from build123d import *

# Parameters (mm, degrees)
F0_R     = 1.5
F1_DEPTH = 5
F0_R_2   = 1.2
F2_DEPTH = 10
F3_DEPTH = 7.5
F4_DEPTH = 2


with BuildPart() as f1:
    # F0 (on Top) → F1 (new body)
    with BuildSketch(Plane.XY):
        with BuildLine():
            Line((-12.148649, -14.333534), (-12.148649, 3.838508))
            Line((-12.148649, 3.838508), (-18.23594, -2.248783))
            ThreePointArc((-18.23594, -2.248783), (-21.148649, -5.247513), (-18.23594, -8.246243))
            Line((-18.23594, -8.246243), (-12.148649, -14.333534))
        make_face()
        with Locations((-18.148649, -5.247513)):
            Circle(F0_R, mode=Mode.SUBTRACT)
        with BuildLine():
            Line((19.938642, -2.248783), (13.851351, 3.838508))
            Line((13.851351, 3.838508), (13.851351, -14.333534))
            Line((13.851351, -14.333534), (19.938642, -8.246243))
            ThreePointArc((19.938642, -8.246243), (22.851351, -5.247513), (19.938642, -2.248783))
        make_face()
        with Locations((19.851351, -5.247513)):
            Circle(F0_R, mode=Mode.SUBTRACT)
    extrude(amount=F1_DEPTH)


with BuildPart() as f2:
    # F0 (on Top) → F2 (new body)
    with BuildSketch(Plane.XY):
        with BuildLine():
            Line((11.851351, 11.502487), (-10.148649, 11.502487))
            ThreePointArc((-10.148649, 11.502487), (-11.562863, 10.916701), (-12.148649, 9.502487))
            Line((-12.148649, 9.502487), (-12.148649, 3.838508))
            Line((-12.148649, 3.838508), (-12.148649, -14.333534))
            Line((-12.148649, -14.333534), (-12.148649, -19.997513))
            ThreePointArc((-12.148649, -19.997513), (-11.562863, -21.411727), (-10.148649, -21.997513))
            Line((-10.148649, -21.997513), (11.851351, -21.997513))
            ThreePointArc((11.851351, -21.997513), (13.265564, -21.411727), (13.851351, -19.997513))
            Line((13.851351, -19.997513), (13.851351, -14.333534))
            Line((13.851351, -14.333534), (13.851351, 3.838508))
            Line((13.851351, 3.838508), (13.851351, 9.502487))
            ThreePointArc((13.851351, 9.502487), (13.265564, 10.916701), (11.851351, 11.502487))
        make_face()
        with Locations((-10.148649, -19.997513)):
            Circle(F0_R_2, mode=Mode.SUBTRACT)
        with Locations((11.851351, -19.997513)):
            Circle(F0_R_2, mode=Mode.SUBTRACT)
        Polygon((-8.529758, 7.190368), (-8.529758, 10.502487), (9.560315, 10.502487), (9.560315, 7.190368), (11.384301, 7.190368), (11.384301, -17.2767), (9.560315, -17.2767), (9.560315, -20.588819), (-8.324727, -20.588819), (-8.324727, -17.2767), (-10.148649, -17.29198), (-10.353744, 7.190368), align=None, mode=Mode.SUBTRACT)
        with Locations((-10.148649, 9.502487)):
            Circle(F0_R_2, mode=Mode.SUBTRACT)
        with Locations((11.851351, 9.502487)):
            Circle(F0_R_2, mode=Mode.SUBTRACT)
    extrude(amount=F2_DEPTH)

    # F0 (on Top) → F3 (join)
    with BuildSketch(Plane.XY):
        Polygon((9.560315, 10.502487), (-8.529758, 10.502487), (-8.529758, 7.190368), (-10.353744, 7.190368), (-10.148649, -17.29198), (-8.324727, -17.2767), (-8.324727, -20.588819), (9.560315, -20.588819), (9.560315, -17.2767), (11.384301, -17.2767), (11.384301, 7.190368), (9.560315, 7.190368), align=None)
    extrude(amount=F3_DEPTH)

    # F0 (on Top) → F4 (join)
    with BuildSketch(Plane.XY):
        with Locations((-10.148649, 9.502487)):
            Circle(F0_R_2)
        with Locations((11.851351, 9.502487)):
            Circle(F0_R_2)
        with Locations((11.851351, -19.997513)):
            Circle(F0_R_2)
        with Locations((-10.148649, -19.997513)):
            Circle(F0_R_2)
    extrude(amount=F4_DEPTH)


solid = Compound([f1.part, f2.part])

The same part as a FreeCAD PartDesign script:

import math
import FreeCAD as App
import Part
import Sketcher
Q = App.Units.Quantity

doc = App.newDocument("Part")
params = doc.addObject("Spreadsheet::Sheet", "Params")
for row, (alias, value) in enumerate([
    ("sketch1_diameter", "3 mm"),
    ("sketch1_radius", "3 mm"),
    ("pad1_length", "5 mm"),
    ("sketch2_radius", "1.999999 mm"),
    ("sketch2_diameter", "2.4 mm"),
    ("sketch2_width", "22 mm"),
    ("sketch2_height", "29.5 mm"),
    ("pad2_length", "10 mm"),
    ("pad3_length", "7.5 mm"),
    ("sketch4_diameter", "2.4 mm"),
    ("pad4_length", "2 mm"),
], start=1):
    params.set(f"A{row}", alias)
    params.set(f"B{row}", "=" + value)
    params.setAlias(f"B{row}", alias)

body = doc.addObject("PartDesign::Body", "Body")
body.AllowCompound = True

# Sketch on XY plane
sketch1 = body.newObject("Sketcher::SketchObject", "Sketch")
sketch1.AttachmentSupport = (doc.getObject("XY_Plane"), [""])
sketch1.MapMode = "FlatFace"
sketch1.addGeometry([
    Part.LineSegment(App.Vector(-12.148649, -14.333534, 0), App.Vector(-12.148649, 3.838508, 0)),  # 0
    Part.LineSegment(App.Vector(-12.148649, 3.838508, 0), App.Vector(-18.23594, -2.248783, 0)),  # 1
    Part.ArcOfCircle(Part.Circle(App.Vector(-18.148649, -5.247513, 0), App.Vector(0, 0, 1), 3), math.radians(91.667375), math.radians(268.332625)),  # 2
    Part.LineSegment(App.Vector(-18.23594, -8.246243, 0), App.Vector(-12.148649, -14.333534, 0)),  # 3
    Part.Circle(App.Vector(-18.148649, -5.247513, 0), App.Vector(0, 0, 1), 1.5),  # 4
    Part.LineSegment(App.Vector(19.938642, -2.248783, 0), App.Vector(13.851351, 3.838508, 0)),  # 5
    Part.LineSegment(App.Vector(13.851351, 3.838508, 0), App.Vector(13.851351, -14.333534, 0)),  # 6
    Part.LineSegment(App.Vector(13.851351, -14.333534, 0), App.Vector(19.938642, -8.246243, 0)),  # 7
    Part.ArcOfCircle(Part.Circle(App.Vector(19.851351, -5.247513, 0), App.Vector(0, 0, 1), 3), math.radians(-88.332625), math.radians(88.332625)),  # 8
    Part.Circle(App.Vector(19.851351, -5.247513, 0), App.Vector(0, 0, 1), 1.5),  # 9
], False)
sketch1.addConstraint([
    Sketcher.Constraint("Coincident", 0, 2, 1, 1),
    Sketcher.Constraint("Coincident", 1, 2, 2, 1),
    Sketcher.Constraint("Coincident", 2, 2, 3, 1),
    Sketcher.Constraint("Coincident", 3, 2, 0, 1),
    Sketcher.Constraint("Coincident", 5, 2, 6, 1),
    Sketcher.Constraint("Coincident", 6, 2, 7, 1),
    Sketcher.Constraint("Coincident", 7, 2, 8, 1),
    Sketcher.Constraint("Coincident", 8, 2, 5, 1),
    Sketcher.Constraint("Vertical", 0),
    Sketcher.Constraint("Vertical", 6),
    Sketcher.Constraint("Coincident", 4, 3, 2, 3),
    Sketcher.Constraint("Coincident", 9, 3, 8, 3),
    Sketcher.Constraint("Equal", 2, 8),
    Sketcher.Constraint("Equal", 4, 9),
    Sketcher.Constraint("Perpendicular", 1, 3),
    Sketcher.Constraint("Parallel", 3, 5),
    Sketcher.Constraint("Perpendicular", 5, 7),
    Sketcher.Constraint("Horizontal", 4, 3, 8, 3),
    Sketcher.Constraint("Horizontal", 0, 2, 5, 2),
    Sketcher.Constraint("Horizontal", 3, 2, 6, 2),
    Sketcher.Constraint("Horizontal", 2, 2, 7, 2),
    Sketcher.Constraint("Horizontal", 1, 2, 8, 2),
    Sketcher.Constraint("Vertical", 1, 2, 2, 2),
    Sketcher.Constraint("Diameter", 4, Q("3 mm")),
    Sketcher.Constraint("Radius", 2, Q("3 mm")),
    Sketcher.Constraint("DistanceX", 2, 3, 8, 3, Q("38 mm")),
    Sketcher.Constraint("DistanceX", 2, 3, 0, 2, Q("6 mm")),
    Sketcher.Constraint("Distance", 1, Q("8.608729 mm")),
    Sketcher.Constraint("DistanceX", 2, 3, -1, 1, Q("18.148649 mm")),
    Sketcher.Constraint("DistanceY", -1, 1, 0, 2, Q("3.838508 mm")),
])
sketch1.setExpression("Constraints[23]", "Params.sketch1_diameter")
sketch1.setExpression("Constraints[24]", "Params.sketch1_radius")
pad1 = body.newObject("PartDesign::Pad", "Pad")
pad1.Profile = sketch1
pad1.setExpression("Length", "Params.pad1_length")
body2 = doc.addObject("PartDesign::Body", "Body001")

# Sketch on XY plane
sketch2 = body2.newObject("Sketcher::SketchObject", "Sketch001")
sketch2.AttachmentSupport = (doc.getObject("XY_Plane001"), [""])
sketch2.MapMode = "FlatFace"
sketch2.addGeometry([
    Part.LineSegment(App.Vector(11.851351, 11.502487, 0), App.Vector(-10.148649, 11.502487, 0)),  # 0
    Part.ArcOfCircle(Part.Circle(App.Vector(-10.14865, 9.502488, 0), App.Vector(0, 0, 1), 1.999999), math.radians(89.999957), math.radians(180.000043)),  # 1
    Part.LineSegment(App.Vector(-12.148649, 9.502487, 0), App.Vector(-12.148649, -19.997513, 0)),  # 2
    Part.ArcOfCircle(Part.Circle(App.Vector(-10.14865, -19.997514, 0), App.Vector(0, 0, 1), 1.999999), math.radians(179.999957), math.radians(270.000043)),  # 3
    Part.LineSegment(App.Vector(-10.148649, -21.997513, 0), App.Vector(11.851351, -21.997513, 0)),  # 4
    Part.ArcOfCircle(Part.Circle(App.Vector(11.851351, -19.997513, 0), App.Vector(0, 0, 1), 2), math.radians(-89.999994), math.radians(-0.000006)),  # 5
    Part.LineSegment(App.Vector(13.851351, -19.997513, 0), App.Vector(13.851351, 9.502487, 0)),  # 6
    Part.ArcOfCircle(Part.Circle(App.Vector(11.851351, 9.502487, 0), App.Vector(0, 0, 1), 2), math.radians(0.000006), math.radians(89.999994)),  # 7
    Part.Circle(App.Vector(-10.148649, -19.997513, 0), App.Vector(0, 0, 1), 1.2),  # 8
    Part.Circle(App.Vector(11.851351, -19.997513, 0), App.Vector(0, 0, 1), 1.2),  # 9
    Part.LineSegment(App.Vector(-10.353744, 7.190368, 0), App.Vector(-8.529758, 7.190368, 0)),  # 10
    Part.LineSegment(App.Vector(-8.529758, 7.190368, 0), App.Vector(-8.529758, 10.502487, 0)),  # 11
    Part.LineSegment(App.Vector(-8.529758, 10.502487, 0), App.Vector(9.560315, 10.502487, 0)),  # 12
    Part.LineSegment(App.Vector(9.560315, 10.502487, 0), App.Vector(9.560315, 7.190368, 0)),  # 13
    Part.LineSegment(App.Vector(9.560315, 7.190368, 0), App.Vector(11.384301, 7.190368, 0)),  # 14
    Part.LineSegment(App.Vector(11.384301, 7.190368, 0), App.Vector(11.384301, -17.2767, 0)),  # 15
    Part.LineSegment(App.Vector(11.384301, -17.2767, 0), App.Vector(9.560315, -17.2767, 0)),  # 16
    Part.LineSegment(App.Vector(9.560315, -17.2767, 0), App.Vector(9.560315, -20.588819, 0)),  # 17
    Part.LineSegment(App.Vector(9.560315, -20.588819, 0), App.Vector(-8.324727, -20.588819, 0)),  # 18
    Part.LineSegment(App.Vector(-8.324727, -20.588819, 0), App.Vector(-8.324727, -17.2767, 0)),  # 19
    Part.LineSegment(App.Vector(-8.324727, -17.2767, 0), App.Vector(-10.148649, -17.29198, 0)),  # 20
    Part.LineSegment(App.Vector(-10.148649, -17.29198, 0), App.Vector(-10.353744, 7.190368, 0)),  # 21
    Part.Circle(App.Vector(-10.148649, 9.502487, 0), App.Vector(0, 0, 1), 1.2),  # 22
    Part.Circle(App.Vector(11.851351, 9.502487, 0), App.Vector(0, 0, 1), 1.2),  # 23
], False)
sketch2.addConstraint([
    Sketcher.Constraint("Tangent", 0, 2, 1, 1),
    Sketcher.Constraint("Tangent", 1, 2, 2, 1),
    Sketcher.Constraint("Tangent", 2, 2, 3, 1),
    Sketcher.Constraint("Tangent", 3, 2, 4, 1),
    Sketcher.Constraint("Tangent", 4, 2, 5, 1),
    Sketcher.Constraint("Tangent", 5, 2, 6, 1),
    Sketcher.Constraint("Tangent", 6, 2, 7, 1),
    Sketcher.Constraint("Tangent", 7, 2, 0, 1),
    Sketcher.Constraint("Coincident", 10, 2, 11, 1),
    Sketcher.Constraint("Coincident", 11, 2, 12, 1),
    Sketcher.Constraint("Coincident", 12, 2, 13, 1),
    Sketcher.Constraint("Coincident", 13, 2, 14, 1),
    Sketcher.Constraint("Coincident", 14, 2, 15, 1),
    Sketcher.Constraint("Coincident", 15, 2, 16, 1),
    Sketcher.Constraint("Coincident", 16, 2, 17, 1),
    Sketcher.Constraint("Coincident", 17, 2, 18, 1),
    Sketcher.Constraint("Coincident", 18, 2, 19, 1),
    Sketcher.Constraint("Coincident", 19, 2, 20, 1),
    Sketcher.Constraint("Coincident", 20, 2, 21, 1),
    Sketcher.Constraint("Coincident", 21, 2, 10, 1),
    Sketcher.Constraint("Horizontal", 0),
    Sketcher.Constraint("Vertical", 2),
    Sketcher.Constraint("Horizontal", 4),
    Sketcher.Constraint("Vertical", 6),
    Sketcher.Constraint("Horizontal", 10),
    Sketcher.Constraint("Vertical", 11),
    Sketcher.Constraint("Horizontal", 12),
    Sketcher.Constraint("Vertical", 13),
    Sketcher.Constraint("Horizontal", 14),
    Sketcher.Constraint("Vertical", 15),
    Sketcher.Constraint("Horizontal", 16),
    Sketcher.Constraint("Vertical", 17),
    Sketcher.Constraint("Horizontal", 18),
    Sketcher.Constraint("Vertical", 19),
    Sketcher.Constraint("Coincident", 8, 3, 3, 3),
    Sketcher.Constraint("Coincident", 9, 3, 5, 3),
    Sketcher.Constraint("Coincident", 22, 3, 1, 3),
    Sketcher.Constraint("Coincident", 23, 3, 7, 3),
    Sketcher.Constraint("Equal", 1, 3),
    Sketcher.Constraint("Equal", 3, 5),
    Sketcher.Constraint("Equal", 5, 7),
    Sketcher.Constraint("Equal", 8, 9),
    Sketcher.Constraint("Equal", 9, 22),
    Sketcher.Constraint("Equal", 22, 23),
    Sketcher.Constraint("Perpendicular", 20, 21),
    Sketcher.Constraint("Horizontal", 10, 2, 13, 2),
    Sketcher.Constraint("Horizontal", 16, 2, 19, 2),
    Sketcher.Constraint("Vertical", 13, 2, 16, 2),
    Sketcher.Constraint("Vertical", 3, 2, 20, 2),
    Sketcher.Constraint("Equal", 10, 14),
    Sketcher.Constraint("Equal", 13, 17),
    Sketcher.Constraint("Radius", 1, Q("1.999999 mm")),
    Sketcher.Constraint("Diameter", 8, Q("2.4 mm")),
    Sketcher.Constraint("DistanceX", 0, 2, 0, 1, Q("22 mm")),
    Sketcher.Constraint("DistanceY", 2, 2, 2, 1, Q("29.5 mm")),
    Sketcher.Constraint("DistanceY", 22, 3, 11, 2, Q("1 mm")),
    Sketcher.Constraint("Angle", 20, Q("-179.520013 deg")),
    Sketcher.Constraint("DistanceX", 18, 2, 18, 1, Q("17.885042 mm")),
    Sketcher.Constraint("DistanceY", 11, 1, 11, 2, Q("3.312119 mm")),
    Sketcher.Constraint("DistanceY", 15, 2, 15, 1, Q("24.467068 mm")),
    Sketcher.Constraint("DistanceX", -1, 1, 14, 2, Q("11.384301 mm")),
    Sketcher.Constraint("DistanceY", 15, 2, -1, 1, Q("17.2767 mm")),
    Sketcher.Constraint("DistanceX", 10, 1, 10, 2, Q("1.823986 mm")),
    Sketcher.Constraint("DistanceX", 12, 1, 12, 2, Q("18.090073 mm")),
])
sketch2.setExpression("Constraints[51]", "Params.sketch2_radius")
sketch2.setExpression("Constraints[52]", "Params.sketch2_diameter")
sketch2.setExpression("Constraints[53]", "Params.sketch2_width")
sketch2.setExpression("Constraints[54]", "Params.sketch2_height")
pad2 = body2.newObject("PartDesign::Pad", "Pad001")
pad2.Profile = sketch2
pad2.setExpression("Length", "Params.pad2_length")

# Sketch on XY plane
sketch3 = body2.newObject("Sketcher::SketchObject", "Sketch002")
sketch3.AttachmentSupport = (doc.getObject("XY_Plane001"), [""])
sketch3.MapMode = "FlatFace"
sketch3.addGeometry([
    Part.LineSegment(App.Vector(9.560315, 10.502487, 0), App.Vector(-8.529758, 10.502487, 0)),  # 0
    Part.LineSegment(App.Vector(-8.529758, 10.502487, 0), App.Vector(-8.529758, 7.190368, 0)),  # 1
    Part.LineSegment(App.Vector(-8.529758, 7.190368, 0), App.Vector(-10.353744, 7.190368, 0)),  # 2
    Part.LineSegment(App.Vector(-10.353744, 7.190368, 0), App.Vector(-10.148649, -17.29198, 0)),  # 3
    Part.LineSegment(App.Vector(-10.148649, -17.29198, 0), App.Vector(-8.324727, -17.2767, 0)),  # 4
    Part.LineSegment(App.Vector(-8.324727, -17.2767, 0), App.Vector(-8.324727, -20.588819, 0)),  # 5
    Part.LineSegment(App.Vector(-8.324727, -20.588819, 0), App.Vector(9.560315, -20.588819, 0)),  # 6
    Part.LineSegment(App.Vector(9.560315, -20.588819, 0), App.Vector(9.560315, -17.2767, 0)),  # 7
    Part.LineSegment(App.Vector(9.560315, -17.2767, 0), App.Vector(11.384301, -17.2767, 0)),  # 8
    Part.LineSegment(App.Vector(11.384301, -17.2767, 0), App.Vector(11.384301, 7.190368, 0)),  # 9
    Part.LineSegment(App.Vector(11.384301, 7.190368, 0), App.Vector(9.560315, 7.190368, 0)),  # 10
    Part.LineSegment(App.Vector(9.560315, 7.190368, 0), App.Vector(9.560315, 10.502487, 0)),  # 11
], False)
sketch3.addConstraint([
    Sketcher.Constraint("Coincident", 0, 2, 1, 1),
    Sketcher.Constraint("Coincident", 1, 2, 2, 1),
    Sketcher.Constraint("Coincident", 2, 2, 3, 1),
    Sketcher.Constraint("Coincident", 3, 2, 4, 1),
    Sketcher.Constraint("Coincident", 4, 2, 5, 1),
    Sketcher.Constraint("Coincident", 5, 2, 6, 1),
    Sketcher.Constraint("Coincident", 6, 2, 7, 1),
    Sketcher.Constraint("Coincident", 7, 2, 8, 1),
    Sketcher.Constraint("Coincident", 8, 2, 9, 1),
    Sketcher.Constraint("Coincident", 9, 2, 10, 1),
    Sketcher.Constraint("Coincident", 10, 2, 11, 1),
    Sketcher.Constraint("Coincident", 11, 2, 0, 1),
    Sketcher.Constraint("Horizontal", 0),
    Sketcher.Constraint("Vertical", 1),
    Sketcher.Constraint("Horizontal", 2),
    Sketcher.Constraint("Vertical", 5),
    Sketcher.Constraint("Horizontal", 6),
    Sketcher.Constraint("Vertical", 7),
    Sketcher.Constraint("Horizontal", 8),
    Sketcher.Constraint("Vertical", 9),
    Sketcher.Constraint("Horizontal", 10),
    Sketcher.Constraint("Vertical", 11),
    Sketcher.Constraint("Perpendicular", 3, 4),
    Sketcher.Constraint("Horizontal", 4, 2, 7, 2),
    Sketcher.Constraint("Horizontal", 2, 2, 9, 2),
    Sketcher.Constraint("Vertical", 7, 2, 10, 2),
    Sketcher.Constraint("Equal", 2, 8),
    Sketcher.Constraint("Equal", 1, 5),
    Sketcher.Constraint("Angle", 4, Q("0.479987 deg")),
    Sketcher.Constraint("DistanceX", 6, 1, 6, 2, Q("17.885042 mm")),
    Sketcher.Constraint("DistanceY", 1, 2, 1, 1, Q("3.312119 mm")),
    Sketcher.Constraint("DistanceY", 9, 1, 9, 2, Q("24.467068 mm")),
    Sketcher.Constraint("DistanceY", 4, 2, -1, 1, Q("17.2767 mm")),
    Sketcher.Constraint("DistanceX", -1, 1, 8, 2, Q("11.384301 mm")),
    Sketcher.Constraint("DistanceX", 0, 2, 0, 1, Q("18.090073 mm")),
    Sketcher.Constraint("DistanceX", 2, 2, 2, 1, Q("1.823986 mm")),
])
pad3 = body2.newObject("PartDesign::Pad", "Pad002")
pad3.Profile = sketch3
pad3.setExpression("Length", "Params.pad3_length")

# Sketch on XY plane
sketch4 = body2.newObject("Sketcher::SketchObject", "Sketch003")
sketch4.AttachmentSupport = (doc.getObject("XY_Plane001"), [""])
sketch4.MapMode = "FlatFace"
sketch4.addGeometry([
    Part.Circle(App.Vector(-10.148649, 9.502487, 0), App.Vector(0, 0, 1), 1.2),
    Part.Circle(App.Vector(11.851351, 9.502487, 0), App.Vector(0, 0, 1), 1.2),
    Part.Circle(App.Vector(11.851351, -19.997513, 0), App.Vector(0, 0, 1), 1.2),
    Part.Circle(App.Vector(-10.148649, -19.997513, 0), App.Vector(0, 0, 1), 1.2),
], False)
sketch4.addConstraint([
    Sketcher.Constraint("Equal", 0, 1),
    Sketcher.Constraint("Equal", 1, 2),
    Sketcher.Constraint("Equal", 2, 3),
    Sketcher.Constraint("Horizontal", 0, 3, 1, 3),
    Sketcher.Constraint("Horizontal", 2, 3, 3, 3),
    Sketcher.Constraint("Vertical", 1, 3, 2, 3),
    Sketcher.Constraint("Vertical", 0, 3, 3, 3),
    Sketcher.Constraint("Diameter", 0, Q("2.4 mm")),
    Sketcher.Constraint("DistanceX", 0, 3, 1, 3, Q("22 mm")),
    Sketcher.Constraint("DistanceY", 2, 3, 1, 3, Q("29.5 mm")),
    Sketcher.Constraint("DistanceX", 0, 3, -1, 1, Q("10.148649 mm")),
    Sketcher.Constraint("DistanceY", -1, 1, 0, 3, Q("9.502487 mm")),
])
sketch4.setExpression("Constraints[7]", "Params.sketch4_diameter")
pad4 = body2.newObject("PartDesign::Pad", "Pad003")
pad4.Profile = sketch4
pad4.setExpression("Length", "Params.pad4_length")

doc.recompute()
